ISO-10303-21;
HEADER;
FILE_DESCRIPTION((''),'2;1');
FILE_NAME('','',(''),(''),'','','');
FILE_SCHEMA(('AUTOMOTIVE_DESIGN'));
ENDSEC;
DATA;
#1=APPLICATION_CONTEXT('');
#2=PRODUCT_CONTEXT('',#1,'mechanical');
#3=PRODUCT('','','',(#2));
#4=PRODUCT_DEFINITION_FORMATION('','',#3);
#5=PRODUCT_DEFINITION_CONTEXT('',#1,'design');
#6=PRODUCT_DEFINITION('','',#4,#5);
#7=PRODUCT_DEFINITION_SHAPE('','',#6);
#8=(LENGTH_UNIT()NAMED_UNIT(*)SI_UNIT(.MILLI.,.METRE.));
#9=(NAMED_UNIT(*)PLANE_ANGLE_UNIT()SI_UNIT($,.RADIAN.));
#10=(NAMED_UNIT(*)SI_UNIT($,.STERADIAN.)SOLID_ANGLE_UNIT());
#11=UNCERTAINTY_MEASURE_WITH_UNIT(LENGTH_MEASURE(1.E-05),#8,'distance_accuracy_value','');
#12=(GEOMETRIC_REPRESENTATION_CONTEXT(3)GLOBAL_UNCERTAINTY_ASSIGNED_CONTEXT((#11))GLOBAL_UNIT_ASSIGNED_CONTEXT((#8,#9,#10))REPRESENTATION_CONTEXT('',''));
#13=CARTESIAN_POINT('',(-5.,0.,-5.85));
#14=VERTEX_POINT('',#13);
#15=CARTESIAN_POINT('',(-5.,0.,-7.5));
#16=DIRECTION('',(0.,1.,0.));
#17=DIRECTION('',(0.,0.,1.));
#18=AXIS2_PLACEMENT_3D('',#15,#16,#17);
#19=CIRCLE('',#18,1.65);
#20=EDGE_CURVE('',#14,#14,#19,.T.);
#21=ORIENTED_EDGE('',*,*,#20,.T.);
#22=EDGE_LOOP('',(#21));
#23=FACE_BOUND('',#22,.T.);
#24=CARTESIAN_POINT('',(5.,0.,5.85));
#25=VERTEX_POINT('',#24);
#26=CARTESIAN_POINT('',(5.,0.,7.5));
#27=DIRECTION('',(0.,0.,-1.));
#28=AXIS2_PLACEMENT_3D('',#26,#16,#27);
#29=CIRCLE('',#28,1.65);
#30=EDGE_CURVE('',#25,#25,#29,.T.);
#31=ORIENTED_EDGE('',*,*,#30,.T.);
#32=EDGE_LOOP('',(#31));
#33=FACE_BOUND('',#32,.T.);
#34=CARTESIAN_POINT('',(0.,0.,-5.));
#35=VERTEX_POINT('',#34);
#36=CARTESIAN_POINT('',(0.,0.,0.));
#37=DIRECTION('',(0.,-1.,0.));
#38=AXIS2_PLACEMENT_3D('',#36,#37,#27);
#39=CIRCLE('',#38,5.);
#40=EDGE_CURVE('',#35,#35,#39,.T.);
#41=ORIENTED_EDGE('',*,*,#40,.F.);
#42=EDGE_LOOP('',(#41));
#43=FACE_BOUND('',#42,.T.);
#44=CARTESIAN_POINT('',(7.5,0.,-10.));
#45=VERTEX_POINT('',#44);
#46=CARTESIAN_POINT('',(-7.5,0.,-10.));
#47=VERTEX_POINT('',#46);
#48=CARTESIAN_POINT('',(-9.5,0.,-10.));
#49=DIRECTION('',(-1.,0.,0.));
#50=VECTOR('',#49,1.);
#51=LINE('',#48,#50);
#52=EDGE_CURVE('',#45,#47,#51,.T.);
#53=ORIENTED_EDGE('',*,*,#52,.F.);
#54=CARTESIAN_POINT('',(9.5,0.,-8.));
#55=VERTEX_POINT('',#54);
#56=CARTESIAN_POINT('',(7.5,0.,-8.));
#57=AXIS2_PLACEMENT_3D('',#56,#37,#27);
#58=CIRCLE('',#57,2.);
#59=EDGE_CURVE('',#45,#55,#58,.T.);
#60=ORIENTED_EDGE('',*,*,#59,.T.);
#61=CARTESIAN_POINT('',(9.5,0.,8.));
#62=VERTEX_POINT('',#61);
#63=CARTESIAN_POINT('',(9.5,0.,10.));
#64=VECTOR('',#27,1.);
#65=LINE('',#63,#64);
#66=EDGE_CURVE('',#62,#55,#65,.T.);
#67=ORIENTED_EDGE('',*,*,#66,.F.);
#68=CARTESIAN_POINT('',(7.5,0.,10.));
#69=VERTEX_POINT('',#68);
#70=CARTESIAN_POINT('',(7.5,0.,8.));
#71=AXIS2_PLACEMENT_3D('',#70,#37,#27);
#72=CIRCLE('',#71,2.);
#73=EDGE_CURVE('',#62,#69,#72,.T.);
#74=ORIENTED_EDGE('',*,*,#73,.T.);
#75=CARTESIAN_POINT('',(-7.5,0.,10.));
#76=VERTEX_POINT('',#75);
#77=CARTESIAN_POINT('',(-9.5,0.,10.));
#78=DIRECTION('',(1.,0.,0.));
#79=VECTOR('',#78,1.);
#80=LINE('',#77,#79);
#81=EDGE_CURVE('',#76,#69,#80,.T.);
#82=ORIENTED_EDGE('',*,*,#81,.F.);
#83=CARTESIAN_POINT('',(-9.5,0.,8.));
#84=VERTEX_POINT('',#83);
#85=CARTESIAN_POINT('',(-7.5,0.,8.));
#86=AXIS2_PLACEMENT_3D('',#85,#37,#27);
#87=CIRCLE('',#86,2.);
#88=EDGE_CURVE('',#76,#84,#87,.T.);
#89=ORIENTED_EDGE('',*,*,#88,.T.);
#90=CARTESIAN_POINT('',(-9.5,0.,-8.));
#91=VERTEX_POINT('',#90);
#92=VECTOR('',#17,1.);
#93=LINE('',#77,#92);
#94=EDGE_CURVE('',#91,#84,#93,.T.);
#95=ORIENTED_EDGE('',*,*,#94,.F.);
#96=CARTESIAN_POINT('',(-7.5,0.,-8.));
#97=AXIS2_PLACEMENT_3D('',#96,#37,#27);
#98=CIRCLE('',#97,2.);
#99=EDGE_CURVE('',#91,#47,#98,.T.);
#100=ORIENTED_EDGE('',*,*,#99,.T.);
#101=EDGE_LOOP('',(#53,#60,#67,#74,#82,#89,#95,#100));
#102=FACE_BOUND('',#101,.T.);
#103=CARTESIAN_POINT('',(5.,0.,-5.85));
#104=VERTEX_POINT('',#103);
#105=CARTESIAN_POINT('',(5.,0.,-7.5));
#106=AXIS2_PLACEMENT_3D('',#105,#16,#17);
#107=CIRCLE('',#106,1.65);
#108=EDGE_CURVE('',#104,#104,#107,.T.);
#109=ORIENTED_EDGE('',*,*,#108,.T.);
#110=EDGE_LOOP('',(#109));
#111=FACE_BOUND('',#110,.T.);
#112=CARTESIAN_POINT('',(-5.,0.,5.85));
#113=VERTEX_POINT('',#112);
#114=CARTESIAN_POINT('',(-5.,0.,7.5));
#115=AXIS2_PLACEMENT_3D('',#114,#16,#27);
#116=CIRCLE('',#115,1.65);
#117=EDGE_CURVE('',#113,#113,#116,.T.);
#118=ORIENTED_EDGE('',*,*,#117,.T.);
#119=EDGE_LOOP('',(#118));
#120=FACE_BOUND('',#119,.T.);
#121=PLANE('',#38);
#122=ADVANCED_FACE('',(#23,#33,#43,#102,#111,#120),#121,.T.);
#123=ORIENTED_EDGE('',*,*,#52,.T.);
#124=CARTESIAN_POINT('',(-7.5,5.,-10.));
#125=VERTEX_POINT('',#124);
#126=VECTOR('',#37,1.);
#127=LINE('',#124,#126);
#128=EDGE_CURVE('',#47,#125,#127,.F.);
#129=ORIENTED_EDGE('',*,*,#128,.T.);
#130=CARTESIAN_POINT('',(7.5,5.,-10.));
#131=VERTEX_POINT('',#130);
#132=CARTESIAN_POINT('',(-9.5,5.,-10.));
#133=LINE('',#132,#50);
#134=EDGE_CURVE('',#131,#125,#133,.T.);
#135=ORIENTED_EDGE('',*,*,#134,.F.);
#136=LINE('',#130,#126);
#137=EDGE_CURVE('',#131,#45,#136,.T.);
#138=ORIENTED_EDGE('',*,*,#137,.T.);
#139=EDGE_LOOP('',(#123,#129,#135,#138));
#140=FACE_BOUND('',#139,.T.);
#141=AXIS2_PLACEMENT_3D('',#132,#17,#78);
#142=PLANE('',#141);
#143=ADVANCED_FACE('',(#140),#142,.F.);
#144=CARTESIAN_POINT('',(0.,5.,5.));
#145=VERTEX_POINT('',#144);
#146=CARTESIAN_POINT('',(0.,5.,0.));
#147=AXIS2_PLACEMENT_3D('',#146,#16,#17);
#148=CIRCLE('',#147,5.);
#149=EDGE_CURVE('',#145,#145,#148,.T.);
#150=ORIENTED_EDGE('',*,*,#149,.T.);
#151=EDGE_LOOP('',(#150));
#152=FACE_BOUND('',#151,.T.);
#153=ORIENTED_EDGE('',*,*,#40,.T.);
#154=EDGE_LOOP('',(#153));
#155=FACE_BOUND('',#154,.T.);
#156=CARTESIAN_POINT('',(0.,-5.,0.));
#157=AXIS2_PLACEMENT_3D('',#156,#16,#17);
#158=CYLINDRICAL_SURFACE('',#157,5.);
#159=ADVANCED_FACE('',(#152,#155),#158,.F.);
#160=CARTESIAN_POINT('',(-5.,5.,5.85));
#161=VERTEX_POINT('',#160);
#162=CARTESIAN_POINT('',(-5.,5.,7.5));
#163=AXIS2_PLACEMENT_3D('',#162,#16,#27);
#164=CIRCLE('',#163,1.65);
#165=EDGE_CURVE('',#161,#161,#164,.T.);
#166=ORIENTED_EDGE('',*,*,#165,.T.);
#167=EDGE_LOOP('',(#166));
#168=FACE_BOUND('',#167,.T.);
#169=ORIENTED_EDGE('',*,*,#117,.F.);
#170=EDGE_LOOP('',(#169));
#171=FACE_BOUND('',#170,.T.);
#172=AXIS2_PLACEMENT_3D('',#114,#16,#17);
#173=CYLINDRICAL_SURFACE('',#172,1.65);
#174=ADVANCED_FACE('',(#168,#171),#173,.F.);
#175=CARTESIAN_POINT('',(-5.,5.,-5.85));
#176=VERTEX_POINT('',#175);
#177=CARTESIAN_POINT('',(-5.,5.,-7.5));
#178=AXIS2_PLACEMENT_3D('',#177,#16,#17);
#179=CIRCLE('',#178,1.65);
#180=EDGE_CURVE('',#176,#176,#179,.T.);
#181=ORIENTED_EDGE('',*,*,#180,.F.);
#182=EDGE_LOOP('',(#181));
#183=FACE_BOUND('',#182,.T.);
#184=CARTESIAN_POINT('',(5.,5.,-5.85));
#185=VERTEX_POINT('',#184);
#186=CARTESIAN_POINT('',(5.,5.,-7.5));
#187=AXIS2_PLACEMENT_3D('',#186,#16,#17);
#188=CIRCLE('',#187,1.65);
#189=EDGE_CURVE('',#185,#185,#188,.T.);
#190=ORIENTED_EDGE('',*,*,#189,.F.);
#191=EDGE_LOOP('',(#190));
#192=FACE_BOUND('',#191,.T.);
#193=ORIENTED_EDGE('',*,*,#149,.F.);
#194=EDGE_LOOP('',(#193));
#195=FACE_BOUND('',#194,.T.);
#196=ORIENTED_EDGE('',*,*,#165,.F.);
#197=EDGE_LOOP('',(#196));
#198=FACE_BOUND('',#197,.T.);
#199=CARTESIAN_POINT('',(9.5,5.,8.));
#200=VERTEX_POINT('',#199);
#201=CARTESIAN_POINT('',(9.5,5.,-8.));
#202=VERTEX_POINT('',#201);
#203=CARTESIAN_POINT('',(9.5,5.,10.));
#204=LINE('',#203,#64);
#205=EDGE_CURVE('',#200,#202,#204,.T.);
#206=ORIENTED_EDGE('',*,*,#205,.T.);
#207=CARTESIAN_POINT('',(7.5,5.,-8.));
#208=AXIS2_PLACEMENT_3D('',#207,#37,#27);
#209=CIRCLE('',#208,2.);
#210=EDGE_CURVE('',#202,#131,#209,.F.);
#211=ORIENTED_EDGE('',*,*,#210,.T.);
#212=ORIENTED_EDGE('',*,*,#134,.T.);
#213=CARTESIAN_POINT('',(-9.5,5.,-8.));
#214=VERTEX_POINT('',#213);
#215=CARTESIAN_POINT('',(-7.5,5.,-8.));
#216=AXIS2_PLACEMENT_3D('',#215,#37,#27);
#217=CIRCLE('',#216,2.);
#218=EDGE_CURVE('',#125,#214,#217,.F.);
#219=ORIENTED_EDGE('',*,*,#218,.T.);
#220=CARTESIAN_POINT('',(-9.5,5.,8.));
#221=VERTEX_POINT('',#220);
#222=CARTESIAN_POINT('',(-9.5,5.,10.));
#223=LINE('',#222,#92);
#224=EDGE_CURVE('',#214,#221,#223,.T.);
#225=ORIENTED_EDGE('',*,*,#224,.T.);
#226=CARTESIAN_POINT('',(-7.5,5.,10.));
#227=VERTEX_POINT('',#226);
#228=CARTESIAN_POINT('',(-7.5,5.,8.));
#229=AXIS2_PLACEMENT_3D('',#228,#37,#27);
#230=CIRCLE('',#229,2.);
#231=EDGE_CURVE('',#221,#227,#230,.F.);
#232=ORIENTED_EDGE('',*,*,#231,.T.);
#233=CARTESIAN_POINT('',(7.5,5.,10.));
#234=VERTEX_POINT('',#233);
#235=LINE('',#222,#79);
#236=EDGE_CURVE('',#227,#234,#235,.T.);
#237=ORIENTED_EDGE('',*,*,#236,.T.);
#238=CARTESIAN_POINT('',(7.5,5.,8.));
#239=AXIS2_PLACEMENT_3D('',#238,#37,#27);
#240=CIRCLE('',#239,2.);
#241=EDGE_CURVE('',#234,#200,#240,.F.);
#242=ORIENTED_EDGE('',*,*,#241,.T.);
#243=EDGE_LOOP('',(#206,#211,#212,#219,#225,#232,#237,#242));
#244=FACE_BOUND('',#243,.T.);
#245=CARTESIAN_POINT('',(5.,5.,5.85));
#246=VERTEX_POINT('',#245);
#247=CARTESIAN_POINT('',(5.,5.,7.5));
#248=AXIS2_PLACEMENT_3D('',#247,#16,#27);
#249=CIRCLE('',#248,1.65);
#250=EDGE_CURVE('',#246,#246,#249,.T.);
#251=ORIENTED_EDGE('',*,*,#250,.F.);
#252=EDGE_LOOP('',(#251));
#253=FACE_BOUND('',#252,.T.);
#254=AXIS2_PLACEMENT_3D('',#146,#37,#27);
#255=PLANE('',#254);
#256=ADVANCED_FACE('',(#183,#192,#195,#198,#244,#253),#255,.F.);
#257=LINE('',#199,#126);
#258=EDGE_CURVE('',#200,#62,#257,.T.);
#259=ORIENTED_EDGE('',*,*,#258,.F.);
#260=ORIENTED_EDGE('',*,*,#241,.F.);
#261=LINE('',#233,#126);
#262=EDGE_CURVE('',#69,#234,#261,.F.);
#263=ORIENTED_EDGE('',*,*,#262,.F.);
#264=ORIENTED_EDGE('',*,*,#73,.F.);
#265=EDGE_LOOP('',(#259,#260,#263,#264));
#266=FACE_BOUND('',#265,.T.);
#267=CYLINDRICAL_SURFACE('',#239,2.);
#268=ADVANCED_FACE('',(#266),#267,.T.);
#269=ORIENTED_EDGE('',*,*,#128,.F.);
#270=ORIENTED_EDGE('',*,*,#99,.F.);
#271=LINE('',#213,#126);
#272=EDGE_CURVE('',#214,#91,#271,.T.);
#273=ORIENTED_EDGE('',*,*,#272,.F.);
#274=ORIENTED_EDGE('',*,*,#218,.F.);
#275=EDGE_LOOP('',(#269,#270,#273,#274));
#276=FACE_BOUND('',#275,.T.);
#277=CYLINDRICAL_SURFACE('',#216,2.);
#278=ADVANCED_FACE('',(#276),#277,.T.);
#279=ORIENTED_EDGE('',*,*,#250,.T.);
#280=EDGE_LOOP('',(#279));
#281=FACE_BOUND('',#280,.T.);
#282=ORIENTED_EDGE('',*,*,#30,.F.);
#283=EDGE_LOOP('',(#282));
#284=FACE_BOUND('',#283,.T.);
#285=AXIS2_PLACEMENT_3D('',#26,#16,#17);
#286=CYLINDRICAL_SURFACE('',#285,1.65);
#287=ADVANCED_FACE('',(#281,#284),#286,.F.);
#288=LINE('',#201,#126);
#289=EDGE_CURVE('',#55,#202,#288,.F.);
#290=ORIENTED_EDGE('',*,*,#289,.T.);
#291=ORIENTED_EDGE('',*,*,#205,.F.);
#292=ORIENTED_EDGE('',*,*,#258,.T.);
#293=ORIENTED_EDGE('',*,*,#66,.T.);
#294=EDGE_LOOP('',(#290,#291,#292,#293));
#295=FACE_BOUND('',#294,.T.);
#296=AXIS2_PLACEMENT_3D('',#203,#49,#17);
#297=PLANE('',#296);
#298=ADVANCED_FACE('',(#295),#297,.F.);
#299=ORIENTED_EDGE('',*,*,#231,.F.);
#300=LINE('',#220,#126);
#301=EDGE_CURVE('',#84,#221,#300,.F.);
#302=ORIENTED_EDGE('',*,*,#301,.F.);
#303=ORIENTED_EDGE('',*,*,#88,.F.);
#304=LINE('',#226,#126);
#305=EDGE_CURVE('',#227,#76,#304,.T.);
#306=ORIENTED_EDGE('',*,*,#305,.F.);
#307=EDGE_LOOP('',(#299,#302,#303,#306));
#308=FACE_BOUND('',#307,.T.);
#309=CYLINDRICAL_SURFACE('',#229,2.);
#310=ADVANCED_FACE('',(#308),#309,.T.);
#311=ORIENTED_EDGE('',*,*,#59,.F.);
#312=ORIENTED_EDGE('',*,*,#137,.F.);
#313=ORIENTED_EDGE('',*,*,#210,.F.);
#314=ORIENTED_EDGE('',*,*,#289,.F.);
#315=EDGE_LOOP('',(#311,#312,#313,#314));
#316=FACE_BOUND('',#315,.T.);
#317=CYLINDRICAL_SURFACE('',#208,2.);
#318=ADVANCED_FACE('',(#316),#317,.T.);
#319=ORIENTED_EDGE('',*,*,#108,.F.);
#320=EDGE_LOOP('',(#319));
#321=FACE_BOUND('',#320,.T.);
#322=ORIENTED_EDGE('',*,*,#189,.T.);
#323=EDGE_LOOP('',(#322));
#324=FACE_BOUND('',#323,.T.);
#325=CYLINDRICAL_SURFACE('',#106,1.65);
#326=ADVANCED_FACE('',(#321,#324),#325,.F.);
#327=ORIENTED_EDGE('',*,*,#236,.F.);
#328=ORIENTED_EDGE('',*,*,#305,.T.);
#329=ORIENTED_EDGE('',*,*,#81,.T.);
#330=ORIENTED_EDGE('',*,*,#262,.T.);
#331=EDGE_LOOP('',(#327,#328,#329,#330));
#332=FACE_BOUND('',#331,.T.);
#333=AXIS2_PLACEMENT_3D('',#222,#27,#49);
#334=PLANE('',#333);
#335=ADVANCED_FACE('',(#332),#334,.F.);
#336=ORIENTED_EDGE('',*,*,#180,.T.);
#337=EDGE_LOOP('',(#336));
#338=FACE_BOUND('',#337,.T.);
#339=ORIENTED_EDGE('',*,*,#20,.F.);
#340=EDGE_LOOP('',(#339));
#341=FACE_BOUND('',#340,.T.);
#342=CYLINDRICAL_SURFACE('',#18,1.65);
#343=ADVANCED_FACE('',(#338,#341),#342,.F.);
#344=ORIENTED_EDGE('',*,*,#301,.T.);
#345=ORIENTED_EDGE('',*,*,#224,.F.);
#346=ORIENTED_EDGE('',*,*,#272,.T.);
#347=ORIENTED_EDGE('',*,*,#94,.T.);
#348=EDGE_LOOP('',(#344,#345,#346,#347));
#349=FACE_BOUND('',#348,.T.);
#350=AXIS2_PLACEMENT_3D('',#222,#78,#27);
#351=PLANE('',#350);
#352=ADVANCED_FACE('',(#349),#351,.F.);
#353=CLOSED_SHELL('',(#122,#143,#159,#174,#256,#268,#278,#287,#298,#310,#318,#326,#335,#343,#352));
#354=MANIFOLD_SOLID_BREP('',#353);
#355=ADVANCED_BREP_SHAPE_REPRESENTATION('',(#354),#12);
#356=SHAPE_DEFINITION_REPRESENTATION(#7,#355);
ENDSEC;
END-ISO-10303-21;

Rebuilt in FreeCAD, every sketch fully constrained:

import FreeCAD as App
import Part
import Sketcher
Q = App.Units.Quantity


def edges_at(feature, points):
    """Names of the edges that pass closest to the given points."""
    edges = feature.Shape.Edges
    near = lambda p: min(range(len(edges)), key=lambda i: edges[i].distToShape(Part.Vertex(*p))[0])
    return sorted({f"Edge{near(p) + 1}" for p in points})


def add_polygon(sketch, points):
    """Adds a closed chain of lines whose ends are joined by coincident constraints."""
    first, n = sketch.GeometryCount, len(points)
    for a, b in zip(points, points[1:] + points[:1]):
        sketch.addGeometry(Part.LineSegment(App.Vector(*a, 0), App.Vector(*b, 0)), False)
    for i in range(n):
        sketch.addConstraint(Sketcher.Constraint("Coincident", first + i, 2, first + (i + 1) % n, 1))

doc = App.newDocument("Part")
body = doc.addObject("PartDesign::Body", "Body")

# Sketch on XZ plane
sketch1 = body.newObject("Sketcher::SketchObject", "Sketch")
sketch1.AttachmentSupport = (doc.getObject("XZ_Plane"), [""])
sketch1.MapMode = "FlatFace"
add_polygon(sketch1, [(-10, -10), (-10, 10), (10, 10), (10, -10)])  # lines 0-3
sketch1.addConstraint(Sketcher.Constraint("Vertical", 0))
sketch1.addConstraint(Sketcher.Constraint("Horizontal", 1))
sketch1.addConstraint(Sketcher.Constraint("Vertical", 2))
sketch1.addConstraint(Sketcher.Constraint("Horizontal", 3))
sketch1.addConstraint(Sketcher.Constraint("Symmetric", 0, 2, 2, 2, -1, 1))
sketch1.addConstraint(Sketcher.Constraint("DistanceX", 1, 1, 1, 2, Q("19 mm")))
sketch1.addConstraint(Sketcher.Constraint("DistanceY", 0, 1, 0, 2, Q("20 mm")))
pad1 = body.newObject("PartDesign::Pad", "Pad")
pad1.Profile = sketch1
pad1.Length = 5
pad1.Reversed = True

# Sketch on XZ plane
sketch2 = body.newObject("Sketcher::SketchObject", "Sketch001")
sketch2.AttachmentSupport = (doc.getObject("XZ_Plane"), [""])
sketch2.MapMode = "FlatFace"
sketch2.AttachmentOffset = App.Placement(App.Vector(0, 0, -5), App.Rotation())
sketch2.addGeometry(Part.Circle(App.Vector(-5, -7.5, 0), App.Vector(0, 0, 1), 1.6), False)
sketch2.addGeometry(Part.Circle(App.Vector(5, -7.5, 0), App.Vector(0, 0, 1), 1.6), False)
sketch2.addGeometry(Part.Circle(App.Vector(5, 7.5, 0), App.Vector(0, 0, 1), 1.6), False)
sketch2.addGeometry(Part.Circle(App.Vector(-5, 7.5, 0), App.Vector(0, 0, 1), 1.6), False)
sketch2.addConstraint(Sketcher.Constraint("Equal", 0, 1))
sketch2.addConstraint(Sketcher.Constraint("Equal", 1, 2))
sketch2.addConstraint(Sketcher.Constraint("Equal", 2, 3))
sketch2.addConstraint(Sketcher.Constraint("Symmetric", 0, 3, 2, 3, -1, 1))
sketch2.addConstraint(Sketcher.Constraint("Symmetric", 1, 3, 3, 3, -1, 1))
sketch2.addConstraint(Sketcher.Constraint("Symmetric", 0, 3, 1, 3, -2))
sketch2.addConstraint(Sketcher.Constraint("Diameter", 0, Q("3.3 mm")))
sketch2.addConstraint(Sketcher.Constraint("DistanceX", 0, 3, -1, 1, Q("5 mm")))
sketch2.addConstraint(Sketcher.Constraint("DistanceY", 1, 3, 2, 3, Q("15 mm")))
pocket1 = body.newObject("PartDesign::Pocket", "Pocket")
pocket1.Profile = sketch2
pocket1.Type = "ThroughAll"
pocket1.Reversed = True
doc.recompute()

fillet = body.newObject("PartDesign::Fillet", "Fillet")
fillet.Base = (pocket1, edges_at(pocket1, [
    (9.5, 2.5, 10),
    (-9.5, 2.5, 10),
    (-9.5, 2.5, -10),
    (9.5, 2.5, -10),
]))
fillet.Radius = 2

# Sketch on XZ plane
sketch3 = body.newObject("Sketcher::SketchObject", "Sketch002")
sketch3.AttachmentSupport = (doc.getObject("XZ_Plane"), [""])
sketch3.MapMode = "FlatFace"
sketch3.AttachmentOffset = App.Placement(App.Vector(0, 0, -5), App.Rotation())
sketch3.addGeometry(Part.Circle(App.Vector(0, 0, 0), App.Vector(0, 0, 1), 5), False)
sketch3.addConstraint(Sketcher.Constraint("Coincident", 0, 3, -1, 1))
sketch3.addConstraint(Sketcher.Constraint("Diameter", 0, Q("10 mm")))
pocket2 = body.newObject("PartDesign::Pocket", "Pocket001")
pocket2.Profile = sketch3
pocket2.Length = 10
pocket2.Reversed = True

doc.recompute()
